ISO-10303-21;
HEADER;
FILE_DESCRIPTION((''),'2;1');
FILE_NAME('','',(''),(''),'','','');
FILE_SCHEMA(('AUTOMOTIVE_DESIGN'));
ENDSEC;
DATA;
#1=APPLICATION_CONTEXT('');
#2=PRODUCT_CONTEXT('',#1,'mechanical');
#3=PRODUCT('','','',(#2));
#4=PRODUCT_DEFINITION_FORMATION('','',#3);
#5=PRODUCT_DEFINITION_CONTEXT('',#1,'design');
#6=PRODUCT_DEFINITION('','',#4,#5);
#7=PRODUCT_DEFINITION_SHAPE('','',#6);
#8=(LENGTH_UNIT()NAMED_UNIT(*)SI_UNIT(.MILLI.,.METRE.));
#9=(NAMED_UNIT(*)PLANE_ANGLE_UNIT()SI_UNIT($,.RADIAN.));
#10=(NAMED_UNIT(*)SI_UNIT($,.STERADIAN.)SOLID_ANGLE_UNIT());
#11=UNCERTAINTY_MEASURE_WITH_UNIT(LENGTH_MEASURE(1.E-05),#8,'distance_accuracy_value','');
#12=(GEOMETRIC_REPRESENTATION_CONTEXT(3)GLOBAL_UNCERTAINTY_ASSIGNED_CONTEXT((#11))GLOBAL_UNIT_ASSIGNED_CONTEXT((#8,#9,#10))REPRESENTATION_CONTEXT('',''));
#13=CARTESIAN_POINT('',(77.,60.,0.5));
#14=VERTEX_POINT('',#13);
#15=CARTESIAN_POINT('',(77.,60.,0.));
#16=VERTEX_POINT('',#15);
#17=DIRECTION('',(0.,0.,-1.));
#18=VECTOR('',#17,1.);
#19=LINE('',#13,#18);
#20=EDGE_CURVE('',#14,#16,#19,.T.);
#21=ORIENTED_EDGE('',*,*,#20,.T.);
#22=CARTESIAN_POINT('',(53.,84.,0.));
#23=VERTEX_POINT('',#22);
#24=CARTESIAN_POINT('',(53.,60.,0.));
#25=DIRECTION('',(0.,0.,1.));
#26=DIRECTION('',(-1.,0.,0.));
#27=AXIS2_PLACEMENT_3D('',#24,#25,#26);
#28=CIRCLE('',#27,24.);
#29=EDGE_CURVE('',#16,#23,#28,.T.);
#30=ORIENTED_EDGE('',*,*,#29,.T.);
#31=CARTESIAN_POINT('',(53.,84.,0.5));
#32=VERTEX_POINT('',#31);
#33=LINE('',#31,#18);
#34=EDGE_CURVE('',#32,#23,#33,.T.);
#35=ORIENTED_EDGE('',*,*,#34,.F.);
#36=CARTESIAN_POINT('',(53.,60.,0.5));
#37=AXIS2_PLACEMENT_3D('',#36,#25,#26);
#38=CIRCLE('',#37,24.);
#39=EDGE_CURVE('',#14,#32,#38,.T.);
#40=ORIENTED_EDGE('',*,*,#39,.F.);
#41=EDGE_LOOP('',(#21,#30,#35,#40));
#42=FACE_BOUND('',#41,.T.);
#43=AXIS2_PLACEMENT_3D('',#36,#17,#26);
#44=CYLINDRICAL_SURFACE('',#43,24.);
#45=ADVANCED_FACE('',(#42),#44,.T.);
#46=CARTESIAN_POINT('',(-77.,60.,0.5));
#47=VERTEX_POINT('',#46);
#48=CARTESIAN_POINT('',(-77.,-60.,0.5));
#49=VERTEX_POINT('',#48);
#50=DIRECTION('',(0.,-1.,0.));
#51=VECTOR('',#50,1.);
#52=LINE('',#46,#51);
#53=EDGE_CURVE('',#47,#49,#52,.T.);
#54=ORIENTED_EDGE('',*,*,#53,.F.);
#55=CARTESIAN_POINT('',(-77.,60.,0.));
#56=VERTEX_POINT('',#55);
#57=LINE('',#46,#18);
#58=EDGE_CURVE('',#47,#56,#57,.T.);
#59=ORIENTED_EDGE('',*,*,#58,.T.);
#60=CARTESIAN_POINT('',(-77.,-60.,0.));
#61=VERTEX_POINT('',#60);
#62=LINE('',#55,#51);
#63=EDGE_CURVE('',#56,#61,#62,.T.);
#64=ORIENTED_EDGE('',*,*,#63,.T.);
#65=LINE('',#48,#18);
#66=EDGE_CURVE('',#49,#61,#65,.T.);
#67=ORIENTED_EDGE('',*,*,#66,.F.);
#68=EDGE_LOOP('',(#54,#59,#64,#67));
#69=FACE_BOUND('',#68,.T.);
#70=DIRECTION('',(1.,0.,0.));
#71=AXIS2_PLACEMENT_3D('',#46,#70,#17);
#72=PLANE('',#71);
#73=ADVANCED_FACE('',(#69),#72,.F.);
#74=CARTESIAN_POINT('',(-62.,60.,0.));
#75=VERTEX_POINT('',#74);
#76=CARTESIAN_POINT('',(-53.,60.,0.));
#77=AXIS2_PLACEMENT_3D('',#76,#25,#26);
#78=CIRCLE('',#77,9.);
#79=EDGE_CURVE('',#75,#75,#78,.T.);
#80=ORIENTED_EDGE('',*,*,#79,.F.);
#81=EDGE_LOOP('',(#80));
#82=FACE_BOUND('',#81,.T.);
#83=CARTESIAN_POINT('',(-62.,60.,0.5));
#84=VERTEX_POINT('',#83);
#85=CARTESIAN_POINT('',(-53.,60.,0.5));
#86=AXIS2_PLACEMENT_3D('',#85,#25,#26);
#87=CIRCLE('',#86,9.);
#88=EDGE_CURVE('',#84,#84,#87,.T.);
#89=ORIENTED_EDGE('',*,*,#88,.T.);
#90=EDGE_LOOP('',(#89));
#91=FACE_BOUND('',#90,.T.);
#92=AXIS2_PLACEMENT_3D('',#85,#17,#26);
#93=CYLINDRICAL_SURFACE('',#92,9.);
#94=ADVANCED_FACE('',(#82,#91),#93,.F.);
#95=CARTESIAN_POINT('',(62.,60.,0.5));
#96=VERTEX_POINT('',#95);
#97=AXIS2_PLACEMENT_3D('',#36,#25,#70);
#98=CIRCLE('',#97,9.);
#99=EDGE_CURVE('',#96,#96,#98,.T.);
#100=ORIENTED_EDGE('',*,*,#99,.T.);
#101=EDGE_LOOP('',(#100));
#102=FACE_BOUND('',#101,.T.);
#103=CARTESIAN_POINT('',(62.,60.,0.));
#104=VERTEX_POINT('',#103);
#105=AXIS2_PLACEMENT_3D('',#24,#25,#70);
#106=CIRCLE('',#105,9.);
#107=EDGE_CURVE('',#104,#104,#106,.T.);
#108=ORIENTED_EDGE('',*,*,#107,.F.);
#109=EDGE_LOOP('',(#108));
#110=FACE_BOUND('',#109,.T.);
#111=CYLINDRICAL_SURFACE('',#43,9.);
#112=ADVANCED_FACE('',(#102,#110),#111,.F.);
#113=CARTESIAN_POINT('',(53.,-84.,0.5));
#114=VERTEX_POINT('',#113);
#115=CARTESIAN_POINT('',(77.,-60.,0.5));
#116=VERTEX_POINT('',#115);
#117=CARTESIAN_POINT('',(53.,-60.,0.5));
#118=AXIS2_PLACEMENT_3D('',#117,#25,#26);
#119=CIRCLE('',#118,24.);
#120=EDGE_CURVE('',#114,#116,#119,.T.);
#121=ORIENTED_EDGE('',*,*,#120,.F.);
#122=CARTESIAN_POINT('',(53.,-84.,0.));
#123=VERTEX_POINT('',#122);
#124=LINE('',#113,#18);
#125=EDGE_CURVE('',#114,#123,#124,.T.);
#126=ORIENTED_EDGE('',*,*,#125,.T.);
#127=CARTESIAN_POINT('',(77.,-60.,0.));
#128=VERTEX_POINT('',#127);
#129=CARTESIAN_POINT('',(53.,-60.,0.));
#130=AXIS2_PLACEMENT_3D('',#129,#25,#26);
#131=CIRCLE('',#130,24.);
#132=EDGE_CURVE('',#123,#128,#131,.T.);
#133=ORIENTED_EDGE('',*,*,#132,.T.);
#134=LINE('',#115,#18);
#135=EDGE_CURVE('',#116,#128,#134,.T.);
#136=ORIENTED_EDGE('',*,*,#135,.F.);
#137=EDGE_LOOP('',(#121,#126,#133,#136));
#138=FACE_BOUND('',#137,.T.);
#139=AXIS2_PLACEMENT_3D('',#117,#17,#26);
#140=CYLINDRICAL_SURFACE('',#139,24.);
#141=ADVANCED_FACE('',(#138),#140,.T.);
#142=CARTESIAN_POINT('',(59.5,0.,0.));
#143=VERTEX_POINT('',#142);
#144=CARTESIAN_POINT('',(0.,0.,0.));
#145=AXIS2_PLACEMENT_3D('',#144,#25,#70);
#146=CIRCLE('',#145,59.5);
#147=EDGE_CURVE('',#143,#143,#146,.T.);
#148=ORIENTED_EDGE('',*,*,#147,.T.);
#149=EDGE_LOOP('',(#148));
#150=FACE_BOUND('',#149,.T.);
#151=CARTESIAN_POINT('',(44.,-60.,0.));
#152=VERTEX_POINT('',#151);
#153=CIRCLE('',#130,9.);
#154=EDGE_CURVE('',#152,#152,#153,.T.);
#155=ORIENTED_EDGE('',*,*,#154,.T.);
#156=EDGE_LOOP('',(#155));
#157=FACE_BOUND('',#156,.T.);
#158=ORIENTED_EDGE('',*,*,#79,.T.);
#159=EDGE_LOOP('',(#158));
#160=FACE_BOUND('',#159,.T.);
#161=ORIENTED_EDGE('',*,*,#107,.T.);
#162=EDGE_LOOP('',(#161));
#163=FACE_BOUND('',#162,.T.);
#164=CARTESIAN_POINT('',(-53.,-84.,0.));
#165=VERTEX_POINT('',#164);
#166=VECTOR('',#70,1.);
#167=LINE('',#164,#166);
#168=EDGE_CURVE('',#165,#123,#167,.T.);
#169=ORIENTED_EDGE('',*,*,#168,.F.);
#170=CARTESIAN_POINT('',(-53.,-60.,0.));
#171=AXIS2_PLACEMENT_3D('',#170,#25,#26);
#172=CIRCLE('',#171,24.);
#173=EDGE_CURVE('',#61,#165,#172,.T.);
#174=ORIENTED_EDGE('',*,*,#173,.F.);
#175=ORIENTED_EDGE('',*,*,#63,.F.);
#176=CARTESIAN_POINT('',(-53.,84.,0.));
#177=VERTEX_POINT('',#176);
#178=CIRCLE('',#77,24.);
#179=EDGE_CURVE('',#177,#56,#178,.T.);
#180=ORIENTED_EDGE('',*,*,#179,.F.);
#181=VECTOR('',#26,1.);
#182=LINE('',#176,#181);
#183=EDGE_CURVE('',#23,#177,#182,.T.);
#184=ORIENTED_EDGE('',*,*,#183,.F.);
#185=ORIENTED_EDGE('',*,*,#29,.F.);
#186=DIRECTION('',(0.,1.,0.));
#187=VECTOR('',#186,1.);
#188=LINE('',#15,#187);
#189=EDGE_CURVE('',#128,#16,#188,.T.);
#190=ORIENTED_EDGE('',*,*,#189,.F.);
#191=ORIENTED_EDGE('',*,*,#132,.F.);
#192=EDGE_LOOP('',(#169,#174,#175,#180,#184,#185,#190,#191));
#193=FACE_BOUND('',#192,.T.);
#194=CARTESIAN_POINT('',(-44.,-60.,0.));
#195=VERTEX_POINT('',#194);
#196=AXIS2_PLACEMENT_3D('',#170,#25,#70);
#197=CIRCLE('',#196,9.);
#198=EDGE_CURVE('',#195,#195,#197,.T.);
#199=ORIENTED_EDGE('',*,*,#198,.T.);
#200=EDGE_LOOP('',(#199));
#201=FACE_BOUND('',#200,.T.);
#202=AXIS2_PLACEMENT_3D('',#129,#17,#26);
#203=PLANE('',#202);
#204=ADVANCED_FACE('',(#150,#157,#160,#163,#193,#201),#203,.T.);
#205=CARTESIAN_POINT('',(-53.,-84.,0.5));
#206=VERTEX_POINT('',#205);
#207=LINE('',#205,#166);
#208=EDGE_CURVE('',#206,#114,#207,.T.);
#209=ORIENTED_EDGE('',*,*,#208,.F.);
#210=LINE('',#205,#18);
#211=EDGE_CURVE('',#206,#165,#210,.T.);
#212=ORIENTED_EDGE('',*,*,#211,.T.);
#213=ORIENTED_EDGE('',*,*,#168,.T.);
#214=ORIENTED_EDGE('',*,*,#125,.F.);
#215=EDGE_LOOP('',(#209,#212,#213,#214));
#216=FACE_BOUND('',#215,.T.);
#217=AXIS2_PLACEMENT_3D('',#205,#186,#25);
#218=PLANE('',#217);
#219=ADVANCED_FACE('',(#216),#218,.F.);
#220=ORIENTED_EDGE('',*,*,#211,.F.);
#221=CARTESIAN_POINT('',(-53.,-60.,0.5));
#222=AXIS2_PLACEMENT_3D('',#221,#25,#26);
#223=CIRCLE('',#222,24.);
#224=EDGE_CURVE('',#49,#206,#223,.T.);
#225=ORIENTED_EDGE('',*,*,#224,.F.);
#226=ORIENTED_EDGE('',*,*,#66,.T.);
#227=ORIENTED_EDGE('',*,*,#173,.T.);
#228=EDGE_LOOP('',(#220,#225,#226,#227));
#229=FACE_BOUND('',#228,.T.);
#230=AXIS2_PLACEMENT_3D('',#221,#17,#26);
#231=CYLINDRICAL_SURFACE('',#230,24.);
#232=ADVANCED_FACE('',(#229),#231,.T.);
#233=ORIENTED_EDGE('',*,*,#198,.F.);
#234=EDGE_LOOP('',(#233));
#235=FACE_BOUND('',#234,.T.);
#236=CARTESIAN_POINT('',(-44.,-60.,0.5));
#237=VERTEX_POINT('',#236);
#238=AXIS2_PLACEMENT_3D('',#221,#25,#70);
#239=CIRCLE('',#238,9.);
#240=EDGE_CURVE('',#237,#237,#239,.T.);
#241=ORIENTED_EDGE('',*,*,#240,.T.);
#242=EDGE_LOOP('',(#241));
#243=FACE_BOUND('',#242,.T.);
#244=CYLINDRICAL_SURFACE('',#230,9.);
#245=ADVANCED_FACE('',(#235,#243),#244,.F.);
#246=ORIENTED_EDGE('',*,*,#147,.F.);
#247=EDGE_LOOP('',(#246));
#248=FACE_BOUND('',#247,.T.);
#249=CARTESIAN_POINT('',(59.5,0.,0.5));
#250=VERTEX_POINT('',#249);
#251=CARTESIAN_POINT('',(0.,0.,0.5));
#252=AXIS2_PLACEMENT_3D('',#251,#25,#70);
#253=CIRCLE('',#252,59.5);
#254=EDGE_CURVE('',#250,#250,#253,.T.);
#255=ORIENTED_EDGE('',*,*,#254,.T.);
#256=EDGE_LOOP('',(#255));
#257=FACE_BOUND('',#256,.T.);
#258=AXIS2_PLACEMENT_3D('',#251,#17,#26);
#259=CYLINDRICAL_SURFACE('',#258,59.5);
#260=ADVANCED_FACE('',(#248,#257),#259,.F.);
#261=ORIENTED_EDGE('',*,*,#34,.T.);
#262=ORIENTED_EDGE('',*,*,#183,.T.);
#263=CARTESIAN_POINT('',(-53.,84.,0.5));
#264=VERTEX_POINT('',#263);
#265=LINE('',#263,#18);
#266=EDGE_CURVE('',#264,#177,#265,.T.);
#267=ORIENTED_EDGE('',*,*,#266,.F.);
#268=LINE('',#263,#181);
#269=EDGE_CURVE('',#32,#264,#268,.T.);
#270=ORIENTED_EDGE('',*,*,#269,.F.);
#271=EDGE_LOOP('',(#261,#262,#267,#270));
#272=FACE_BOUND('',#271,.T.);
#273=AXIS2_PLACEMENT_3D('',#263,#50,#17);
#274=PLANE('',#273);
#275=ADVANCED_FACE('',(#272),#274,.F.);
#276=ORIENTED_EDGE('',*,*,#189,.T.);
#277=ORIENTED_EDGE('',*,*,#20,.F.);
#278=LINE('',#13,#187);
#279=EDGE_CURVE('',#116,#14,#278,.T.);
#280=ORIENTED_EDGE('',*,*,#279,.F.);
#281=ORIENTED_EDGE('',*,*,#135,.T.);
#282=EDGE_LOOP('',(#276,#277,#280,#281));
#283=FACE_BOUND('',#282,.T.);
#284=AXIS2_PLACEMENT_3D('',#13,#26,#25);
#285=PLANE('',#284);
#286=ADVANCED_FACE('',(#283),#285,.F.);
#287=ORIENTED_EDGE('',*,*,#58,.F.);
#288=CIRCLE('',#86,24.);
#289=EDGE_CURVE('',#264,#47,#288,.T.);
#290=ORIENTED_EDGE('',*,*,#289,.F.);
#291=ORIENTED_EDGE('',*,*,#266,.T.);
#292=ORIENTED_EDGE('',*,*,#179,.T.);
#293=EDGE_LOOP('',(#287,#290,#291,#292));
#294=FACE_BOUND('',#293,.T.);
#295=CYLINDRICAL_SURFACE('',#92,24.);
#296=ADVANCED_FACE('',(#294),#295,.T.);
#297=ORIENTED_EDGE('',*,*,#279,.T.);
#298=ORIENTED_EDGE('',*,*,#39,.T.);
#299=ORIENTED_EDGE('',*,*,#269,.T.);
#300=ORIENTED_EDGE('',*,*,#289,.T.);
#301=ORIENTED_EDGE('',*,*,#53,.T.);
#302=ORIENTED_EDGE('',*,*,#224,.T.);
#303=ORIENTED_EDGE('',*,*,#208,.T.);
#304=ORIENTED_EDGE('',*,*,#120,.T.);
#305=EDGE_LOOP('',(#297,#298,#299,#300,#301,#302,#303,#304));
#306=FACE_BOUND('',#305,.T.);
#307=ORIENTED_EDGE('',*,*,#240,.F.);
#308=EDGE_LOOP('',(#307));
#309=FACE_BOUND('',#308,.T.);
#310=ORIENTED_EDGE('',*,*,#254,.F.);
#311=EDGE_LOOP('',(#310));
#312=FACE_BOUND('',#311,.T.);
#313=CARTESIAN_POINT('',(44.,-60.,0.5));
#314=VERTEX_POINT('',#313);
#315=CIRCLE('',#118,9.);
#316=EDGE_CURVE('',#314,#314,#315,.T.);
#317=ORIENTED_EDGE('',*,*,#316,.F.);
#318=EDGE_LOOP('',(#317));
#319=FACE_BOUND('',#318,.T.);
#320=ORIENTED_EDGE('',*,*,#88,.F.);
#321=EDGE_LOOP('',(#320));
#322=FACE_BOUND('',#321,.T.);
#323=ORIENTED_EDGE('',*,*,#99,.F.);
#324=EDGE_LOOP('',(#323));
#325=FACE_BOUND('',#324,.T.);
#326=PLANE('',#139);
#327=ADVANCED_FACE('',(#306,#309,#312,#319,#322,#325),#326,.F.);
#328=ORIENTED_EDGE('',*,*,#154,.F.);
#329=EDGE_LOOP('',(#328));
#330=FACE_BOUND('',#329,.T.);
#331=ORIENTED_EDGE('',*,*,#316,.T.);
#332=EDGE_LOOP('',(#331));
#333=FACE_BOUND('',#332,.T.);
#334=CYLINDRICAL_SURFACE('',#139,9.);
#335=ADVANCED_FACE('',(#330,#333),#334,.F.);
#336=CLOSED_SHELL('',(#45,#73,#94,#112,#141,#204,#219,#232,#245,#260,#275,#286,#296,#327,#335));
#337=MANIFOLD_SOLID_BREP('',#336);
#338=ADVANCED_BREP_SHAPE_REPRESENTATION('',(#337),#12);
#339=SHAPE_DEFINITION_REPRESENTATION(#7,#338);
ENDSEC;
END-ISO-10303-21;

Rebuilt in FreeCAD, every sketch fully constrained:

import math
import FreeCAD as App
import Part
import Sketcher
from FreeCAD import Vector
Q = App.Units.Quantity

doc = App.newDocument("Part")
body = doc.addObject("PartDesign::Body", "Body")

# Sketch on XY plane
sketch1 = doc.addObject("Sketcher::SketchObject", "Sketch")
body.addObject(sketch1)
sketch1.AttachmentSupport = (doc.XY_Plane, [""])
sketch1.MapMode = "FlatFace"
sketch1.addGeometry(Part.LineSegment(Vector(53, 84, 0), Vector(-53, 84, 0)), False)
sketch1.addGeometry(Part.ArcOfCircle(Part.Circle(Vector(-53, 60, 0), Vector(0, 0, 1), 24), math.radians(90), math.radians(180)), False)
sketch1.addGeometry(Part.LineSegment(Vector(-77, 60, 0), Vector(-77, -60, 0)), False)
sketch1.addGeometry(Part.ArcOfCircle(Part.Circle(Vector(-53, -60, 0), Vector(0, 0, 1), 24), math.radians(-180), math.radians(-90)), False)
sketch1.addGeometry(Part.LineSegment(Vector(-53, -84, 0), Vector(53, -84, 0)), False)
sketch1.addGeometry(Part.ArcOfCircle(Part.Circle(Vector(53, -60, 0), Vector(0, 0, 1), 24), math.radians(-90), math.radians(0)), False)
sketch1.addGeometry(Part.LineSegment(Vector(77, -60, 0), Vector(77, 60, 0)), False)
sketch1.addGeometry(Part.ArcOfCircle(Part.Circle(Vector(53, 60, 0), Vector(0, 0, 1), 24), math.radians(0), math.radians(90)), False)
sketch1.addGeometry(Part.Circle(Vector(53, -60, 0), Vector(0, 0, 1), 9), False)
sketch1.addGeometry(Part.Circle(Vector(-53, -60, 0), Vector(0, 0, 1), 9), False)
sketch1.addGeometry(Part.Circle(Vector(53, 60, 0), Vector(0, 0, 1), 9), False)
sketch1.addGeometry(Part.Circle(Vector(0, 0, 0), Vector(0, 0, 1), 60), False)
sketch1.addGeometry(Part.Circle(Vector(-53, 60, 0), Vector(0, 0, 1), 9), False)
sketch1.addConstraint(Sketcher.Constraint("Tangent", 0, 2, 1, 1))
sketch1.addConstraint(Sketcher.Constraint("Tangent", 1, 2, 2, 1))
sketch1.addConstraint(Sketcher.Constraint("Tangent", 2, 2, 3, 1))
sketch1.addConstraint(Sketcher.Constraint("Tangent", 3, 2, 4, 1))
sketch1.addConstraint(Sketcher.Constraint("Tangent", 4, 2, 5, 1))
sketch1.addConstraint(Sketcher.Constraint("Tangent", 5, 2, 6, 1))
sketch1.addConstraint(Sketcher.Constraint("Tangent", 6, 2, 7, 1))
sketch1.addConstraint(Sketcher.Constraint("Tangent", 7, 2, 0, 1))
sketch1.addConstraint(Sketcher.Constraint("Horizontal", 0))
sketch1.addConstraint(Sketcher.Constraint("Vertical", 2))
sketch1.addConstraint(Sketcher.Constraint("Horizontal", 4))
sketch1.addConstraint(Sketcher.Constraint("Vertical", 6))
sketch1.addConstraint(Sketcher.Constraint("Coincident", 11, 3, -1, 1))
sketch1.addConstraint(Sketcher.Constraint("Coincident", 8, 3, 5, 3))
sketch1.addConstraint(Sketcher.Constraint("Coincident", 9, 3, 3, 3))
sketch1.addConstraint(Sketcher.Constraint("Coincident", 10, 3, 7, 3))
sketch1.addConstraint(Sketcher.Constraint("Coincident", 12, 3, 1, 3))
sketch1.addConstraint(Sketcher.Constraint("Equal", 1, 3))
sketch1.addConstraint(Sketcher.Constraint("Equal", 3, 5))
sketch1.addConstraint(Sketcher.Constraint("Equal", 5, 7))
sketch1.addConstraint(Sketcher.Constraint("Equal", 8, 9))
sketch1.addConstraint(Sketcher.Constraint("Equal", 9, 10))
sketch1.addConstraint(Sketcher.Constraint("Equal", 10, 12))
sketch1.addConstraint(Sketcher.Constraint("Symmetric", 1, 3, 5, 3, -1, 1))
sketch1.addConstraint(Sketcher.Constraint("Diameter", 8, Q("18 mm")))
sketch1.addConstraint(Sketcher.Constraint("Diameter", 11, Q("119 mm")))
sketch1.addConstraint(Sketcher.Constraint("Radius", 1, Q("24 mm")))
sketch1.addConstraint(Sketcher.Constraint("DistanceX", 0, 2, 0, 1, Q("106 mm")))
sketch1.addConstraint(Sketcher.Constraint("DistanceY", 2, 2, 2, 1, Q("120 mm")))
pad1 = doc.addObject("PartDesign::Pad", "Pad")
body.addObject(pad1)
pad1.Profile = sketch1
pad1.Length = 0.5

doc.recompute()
